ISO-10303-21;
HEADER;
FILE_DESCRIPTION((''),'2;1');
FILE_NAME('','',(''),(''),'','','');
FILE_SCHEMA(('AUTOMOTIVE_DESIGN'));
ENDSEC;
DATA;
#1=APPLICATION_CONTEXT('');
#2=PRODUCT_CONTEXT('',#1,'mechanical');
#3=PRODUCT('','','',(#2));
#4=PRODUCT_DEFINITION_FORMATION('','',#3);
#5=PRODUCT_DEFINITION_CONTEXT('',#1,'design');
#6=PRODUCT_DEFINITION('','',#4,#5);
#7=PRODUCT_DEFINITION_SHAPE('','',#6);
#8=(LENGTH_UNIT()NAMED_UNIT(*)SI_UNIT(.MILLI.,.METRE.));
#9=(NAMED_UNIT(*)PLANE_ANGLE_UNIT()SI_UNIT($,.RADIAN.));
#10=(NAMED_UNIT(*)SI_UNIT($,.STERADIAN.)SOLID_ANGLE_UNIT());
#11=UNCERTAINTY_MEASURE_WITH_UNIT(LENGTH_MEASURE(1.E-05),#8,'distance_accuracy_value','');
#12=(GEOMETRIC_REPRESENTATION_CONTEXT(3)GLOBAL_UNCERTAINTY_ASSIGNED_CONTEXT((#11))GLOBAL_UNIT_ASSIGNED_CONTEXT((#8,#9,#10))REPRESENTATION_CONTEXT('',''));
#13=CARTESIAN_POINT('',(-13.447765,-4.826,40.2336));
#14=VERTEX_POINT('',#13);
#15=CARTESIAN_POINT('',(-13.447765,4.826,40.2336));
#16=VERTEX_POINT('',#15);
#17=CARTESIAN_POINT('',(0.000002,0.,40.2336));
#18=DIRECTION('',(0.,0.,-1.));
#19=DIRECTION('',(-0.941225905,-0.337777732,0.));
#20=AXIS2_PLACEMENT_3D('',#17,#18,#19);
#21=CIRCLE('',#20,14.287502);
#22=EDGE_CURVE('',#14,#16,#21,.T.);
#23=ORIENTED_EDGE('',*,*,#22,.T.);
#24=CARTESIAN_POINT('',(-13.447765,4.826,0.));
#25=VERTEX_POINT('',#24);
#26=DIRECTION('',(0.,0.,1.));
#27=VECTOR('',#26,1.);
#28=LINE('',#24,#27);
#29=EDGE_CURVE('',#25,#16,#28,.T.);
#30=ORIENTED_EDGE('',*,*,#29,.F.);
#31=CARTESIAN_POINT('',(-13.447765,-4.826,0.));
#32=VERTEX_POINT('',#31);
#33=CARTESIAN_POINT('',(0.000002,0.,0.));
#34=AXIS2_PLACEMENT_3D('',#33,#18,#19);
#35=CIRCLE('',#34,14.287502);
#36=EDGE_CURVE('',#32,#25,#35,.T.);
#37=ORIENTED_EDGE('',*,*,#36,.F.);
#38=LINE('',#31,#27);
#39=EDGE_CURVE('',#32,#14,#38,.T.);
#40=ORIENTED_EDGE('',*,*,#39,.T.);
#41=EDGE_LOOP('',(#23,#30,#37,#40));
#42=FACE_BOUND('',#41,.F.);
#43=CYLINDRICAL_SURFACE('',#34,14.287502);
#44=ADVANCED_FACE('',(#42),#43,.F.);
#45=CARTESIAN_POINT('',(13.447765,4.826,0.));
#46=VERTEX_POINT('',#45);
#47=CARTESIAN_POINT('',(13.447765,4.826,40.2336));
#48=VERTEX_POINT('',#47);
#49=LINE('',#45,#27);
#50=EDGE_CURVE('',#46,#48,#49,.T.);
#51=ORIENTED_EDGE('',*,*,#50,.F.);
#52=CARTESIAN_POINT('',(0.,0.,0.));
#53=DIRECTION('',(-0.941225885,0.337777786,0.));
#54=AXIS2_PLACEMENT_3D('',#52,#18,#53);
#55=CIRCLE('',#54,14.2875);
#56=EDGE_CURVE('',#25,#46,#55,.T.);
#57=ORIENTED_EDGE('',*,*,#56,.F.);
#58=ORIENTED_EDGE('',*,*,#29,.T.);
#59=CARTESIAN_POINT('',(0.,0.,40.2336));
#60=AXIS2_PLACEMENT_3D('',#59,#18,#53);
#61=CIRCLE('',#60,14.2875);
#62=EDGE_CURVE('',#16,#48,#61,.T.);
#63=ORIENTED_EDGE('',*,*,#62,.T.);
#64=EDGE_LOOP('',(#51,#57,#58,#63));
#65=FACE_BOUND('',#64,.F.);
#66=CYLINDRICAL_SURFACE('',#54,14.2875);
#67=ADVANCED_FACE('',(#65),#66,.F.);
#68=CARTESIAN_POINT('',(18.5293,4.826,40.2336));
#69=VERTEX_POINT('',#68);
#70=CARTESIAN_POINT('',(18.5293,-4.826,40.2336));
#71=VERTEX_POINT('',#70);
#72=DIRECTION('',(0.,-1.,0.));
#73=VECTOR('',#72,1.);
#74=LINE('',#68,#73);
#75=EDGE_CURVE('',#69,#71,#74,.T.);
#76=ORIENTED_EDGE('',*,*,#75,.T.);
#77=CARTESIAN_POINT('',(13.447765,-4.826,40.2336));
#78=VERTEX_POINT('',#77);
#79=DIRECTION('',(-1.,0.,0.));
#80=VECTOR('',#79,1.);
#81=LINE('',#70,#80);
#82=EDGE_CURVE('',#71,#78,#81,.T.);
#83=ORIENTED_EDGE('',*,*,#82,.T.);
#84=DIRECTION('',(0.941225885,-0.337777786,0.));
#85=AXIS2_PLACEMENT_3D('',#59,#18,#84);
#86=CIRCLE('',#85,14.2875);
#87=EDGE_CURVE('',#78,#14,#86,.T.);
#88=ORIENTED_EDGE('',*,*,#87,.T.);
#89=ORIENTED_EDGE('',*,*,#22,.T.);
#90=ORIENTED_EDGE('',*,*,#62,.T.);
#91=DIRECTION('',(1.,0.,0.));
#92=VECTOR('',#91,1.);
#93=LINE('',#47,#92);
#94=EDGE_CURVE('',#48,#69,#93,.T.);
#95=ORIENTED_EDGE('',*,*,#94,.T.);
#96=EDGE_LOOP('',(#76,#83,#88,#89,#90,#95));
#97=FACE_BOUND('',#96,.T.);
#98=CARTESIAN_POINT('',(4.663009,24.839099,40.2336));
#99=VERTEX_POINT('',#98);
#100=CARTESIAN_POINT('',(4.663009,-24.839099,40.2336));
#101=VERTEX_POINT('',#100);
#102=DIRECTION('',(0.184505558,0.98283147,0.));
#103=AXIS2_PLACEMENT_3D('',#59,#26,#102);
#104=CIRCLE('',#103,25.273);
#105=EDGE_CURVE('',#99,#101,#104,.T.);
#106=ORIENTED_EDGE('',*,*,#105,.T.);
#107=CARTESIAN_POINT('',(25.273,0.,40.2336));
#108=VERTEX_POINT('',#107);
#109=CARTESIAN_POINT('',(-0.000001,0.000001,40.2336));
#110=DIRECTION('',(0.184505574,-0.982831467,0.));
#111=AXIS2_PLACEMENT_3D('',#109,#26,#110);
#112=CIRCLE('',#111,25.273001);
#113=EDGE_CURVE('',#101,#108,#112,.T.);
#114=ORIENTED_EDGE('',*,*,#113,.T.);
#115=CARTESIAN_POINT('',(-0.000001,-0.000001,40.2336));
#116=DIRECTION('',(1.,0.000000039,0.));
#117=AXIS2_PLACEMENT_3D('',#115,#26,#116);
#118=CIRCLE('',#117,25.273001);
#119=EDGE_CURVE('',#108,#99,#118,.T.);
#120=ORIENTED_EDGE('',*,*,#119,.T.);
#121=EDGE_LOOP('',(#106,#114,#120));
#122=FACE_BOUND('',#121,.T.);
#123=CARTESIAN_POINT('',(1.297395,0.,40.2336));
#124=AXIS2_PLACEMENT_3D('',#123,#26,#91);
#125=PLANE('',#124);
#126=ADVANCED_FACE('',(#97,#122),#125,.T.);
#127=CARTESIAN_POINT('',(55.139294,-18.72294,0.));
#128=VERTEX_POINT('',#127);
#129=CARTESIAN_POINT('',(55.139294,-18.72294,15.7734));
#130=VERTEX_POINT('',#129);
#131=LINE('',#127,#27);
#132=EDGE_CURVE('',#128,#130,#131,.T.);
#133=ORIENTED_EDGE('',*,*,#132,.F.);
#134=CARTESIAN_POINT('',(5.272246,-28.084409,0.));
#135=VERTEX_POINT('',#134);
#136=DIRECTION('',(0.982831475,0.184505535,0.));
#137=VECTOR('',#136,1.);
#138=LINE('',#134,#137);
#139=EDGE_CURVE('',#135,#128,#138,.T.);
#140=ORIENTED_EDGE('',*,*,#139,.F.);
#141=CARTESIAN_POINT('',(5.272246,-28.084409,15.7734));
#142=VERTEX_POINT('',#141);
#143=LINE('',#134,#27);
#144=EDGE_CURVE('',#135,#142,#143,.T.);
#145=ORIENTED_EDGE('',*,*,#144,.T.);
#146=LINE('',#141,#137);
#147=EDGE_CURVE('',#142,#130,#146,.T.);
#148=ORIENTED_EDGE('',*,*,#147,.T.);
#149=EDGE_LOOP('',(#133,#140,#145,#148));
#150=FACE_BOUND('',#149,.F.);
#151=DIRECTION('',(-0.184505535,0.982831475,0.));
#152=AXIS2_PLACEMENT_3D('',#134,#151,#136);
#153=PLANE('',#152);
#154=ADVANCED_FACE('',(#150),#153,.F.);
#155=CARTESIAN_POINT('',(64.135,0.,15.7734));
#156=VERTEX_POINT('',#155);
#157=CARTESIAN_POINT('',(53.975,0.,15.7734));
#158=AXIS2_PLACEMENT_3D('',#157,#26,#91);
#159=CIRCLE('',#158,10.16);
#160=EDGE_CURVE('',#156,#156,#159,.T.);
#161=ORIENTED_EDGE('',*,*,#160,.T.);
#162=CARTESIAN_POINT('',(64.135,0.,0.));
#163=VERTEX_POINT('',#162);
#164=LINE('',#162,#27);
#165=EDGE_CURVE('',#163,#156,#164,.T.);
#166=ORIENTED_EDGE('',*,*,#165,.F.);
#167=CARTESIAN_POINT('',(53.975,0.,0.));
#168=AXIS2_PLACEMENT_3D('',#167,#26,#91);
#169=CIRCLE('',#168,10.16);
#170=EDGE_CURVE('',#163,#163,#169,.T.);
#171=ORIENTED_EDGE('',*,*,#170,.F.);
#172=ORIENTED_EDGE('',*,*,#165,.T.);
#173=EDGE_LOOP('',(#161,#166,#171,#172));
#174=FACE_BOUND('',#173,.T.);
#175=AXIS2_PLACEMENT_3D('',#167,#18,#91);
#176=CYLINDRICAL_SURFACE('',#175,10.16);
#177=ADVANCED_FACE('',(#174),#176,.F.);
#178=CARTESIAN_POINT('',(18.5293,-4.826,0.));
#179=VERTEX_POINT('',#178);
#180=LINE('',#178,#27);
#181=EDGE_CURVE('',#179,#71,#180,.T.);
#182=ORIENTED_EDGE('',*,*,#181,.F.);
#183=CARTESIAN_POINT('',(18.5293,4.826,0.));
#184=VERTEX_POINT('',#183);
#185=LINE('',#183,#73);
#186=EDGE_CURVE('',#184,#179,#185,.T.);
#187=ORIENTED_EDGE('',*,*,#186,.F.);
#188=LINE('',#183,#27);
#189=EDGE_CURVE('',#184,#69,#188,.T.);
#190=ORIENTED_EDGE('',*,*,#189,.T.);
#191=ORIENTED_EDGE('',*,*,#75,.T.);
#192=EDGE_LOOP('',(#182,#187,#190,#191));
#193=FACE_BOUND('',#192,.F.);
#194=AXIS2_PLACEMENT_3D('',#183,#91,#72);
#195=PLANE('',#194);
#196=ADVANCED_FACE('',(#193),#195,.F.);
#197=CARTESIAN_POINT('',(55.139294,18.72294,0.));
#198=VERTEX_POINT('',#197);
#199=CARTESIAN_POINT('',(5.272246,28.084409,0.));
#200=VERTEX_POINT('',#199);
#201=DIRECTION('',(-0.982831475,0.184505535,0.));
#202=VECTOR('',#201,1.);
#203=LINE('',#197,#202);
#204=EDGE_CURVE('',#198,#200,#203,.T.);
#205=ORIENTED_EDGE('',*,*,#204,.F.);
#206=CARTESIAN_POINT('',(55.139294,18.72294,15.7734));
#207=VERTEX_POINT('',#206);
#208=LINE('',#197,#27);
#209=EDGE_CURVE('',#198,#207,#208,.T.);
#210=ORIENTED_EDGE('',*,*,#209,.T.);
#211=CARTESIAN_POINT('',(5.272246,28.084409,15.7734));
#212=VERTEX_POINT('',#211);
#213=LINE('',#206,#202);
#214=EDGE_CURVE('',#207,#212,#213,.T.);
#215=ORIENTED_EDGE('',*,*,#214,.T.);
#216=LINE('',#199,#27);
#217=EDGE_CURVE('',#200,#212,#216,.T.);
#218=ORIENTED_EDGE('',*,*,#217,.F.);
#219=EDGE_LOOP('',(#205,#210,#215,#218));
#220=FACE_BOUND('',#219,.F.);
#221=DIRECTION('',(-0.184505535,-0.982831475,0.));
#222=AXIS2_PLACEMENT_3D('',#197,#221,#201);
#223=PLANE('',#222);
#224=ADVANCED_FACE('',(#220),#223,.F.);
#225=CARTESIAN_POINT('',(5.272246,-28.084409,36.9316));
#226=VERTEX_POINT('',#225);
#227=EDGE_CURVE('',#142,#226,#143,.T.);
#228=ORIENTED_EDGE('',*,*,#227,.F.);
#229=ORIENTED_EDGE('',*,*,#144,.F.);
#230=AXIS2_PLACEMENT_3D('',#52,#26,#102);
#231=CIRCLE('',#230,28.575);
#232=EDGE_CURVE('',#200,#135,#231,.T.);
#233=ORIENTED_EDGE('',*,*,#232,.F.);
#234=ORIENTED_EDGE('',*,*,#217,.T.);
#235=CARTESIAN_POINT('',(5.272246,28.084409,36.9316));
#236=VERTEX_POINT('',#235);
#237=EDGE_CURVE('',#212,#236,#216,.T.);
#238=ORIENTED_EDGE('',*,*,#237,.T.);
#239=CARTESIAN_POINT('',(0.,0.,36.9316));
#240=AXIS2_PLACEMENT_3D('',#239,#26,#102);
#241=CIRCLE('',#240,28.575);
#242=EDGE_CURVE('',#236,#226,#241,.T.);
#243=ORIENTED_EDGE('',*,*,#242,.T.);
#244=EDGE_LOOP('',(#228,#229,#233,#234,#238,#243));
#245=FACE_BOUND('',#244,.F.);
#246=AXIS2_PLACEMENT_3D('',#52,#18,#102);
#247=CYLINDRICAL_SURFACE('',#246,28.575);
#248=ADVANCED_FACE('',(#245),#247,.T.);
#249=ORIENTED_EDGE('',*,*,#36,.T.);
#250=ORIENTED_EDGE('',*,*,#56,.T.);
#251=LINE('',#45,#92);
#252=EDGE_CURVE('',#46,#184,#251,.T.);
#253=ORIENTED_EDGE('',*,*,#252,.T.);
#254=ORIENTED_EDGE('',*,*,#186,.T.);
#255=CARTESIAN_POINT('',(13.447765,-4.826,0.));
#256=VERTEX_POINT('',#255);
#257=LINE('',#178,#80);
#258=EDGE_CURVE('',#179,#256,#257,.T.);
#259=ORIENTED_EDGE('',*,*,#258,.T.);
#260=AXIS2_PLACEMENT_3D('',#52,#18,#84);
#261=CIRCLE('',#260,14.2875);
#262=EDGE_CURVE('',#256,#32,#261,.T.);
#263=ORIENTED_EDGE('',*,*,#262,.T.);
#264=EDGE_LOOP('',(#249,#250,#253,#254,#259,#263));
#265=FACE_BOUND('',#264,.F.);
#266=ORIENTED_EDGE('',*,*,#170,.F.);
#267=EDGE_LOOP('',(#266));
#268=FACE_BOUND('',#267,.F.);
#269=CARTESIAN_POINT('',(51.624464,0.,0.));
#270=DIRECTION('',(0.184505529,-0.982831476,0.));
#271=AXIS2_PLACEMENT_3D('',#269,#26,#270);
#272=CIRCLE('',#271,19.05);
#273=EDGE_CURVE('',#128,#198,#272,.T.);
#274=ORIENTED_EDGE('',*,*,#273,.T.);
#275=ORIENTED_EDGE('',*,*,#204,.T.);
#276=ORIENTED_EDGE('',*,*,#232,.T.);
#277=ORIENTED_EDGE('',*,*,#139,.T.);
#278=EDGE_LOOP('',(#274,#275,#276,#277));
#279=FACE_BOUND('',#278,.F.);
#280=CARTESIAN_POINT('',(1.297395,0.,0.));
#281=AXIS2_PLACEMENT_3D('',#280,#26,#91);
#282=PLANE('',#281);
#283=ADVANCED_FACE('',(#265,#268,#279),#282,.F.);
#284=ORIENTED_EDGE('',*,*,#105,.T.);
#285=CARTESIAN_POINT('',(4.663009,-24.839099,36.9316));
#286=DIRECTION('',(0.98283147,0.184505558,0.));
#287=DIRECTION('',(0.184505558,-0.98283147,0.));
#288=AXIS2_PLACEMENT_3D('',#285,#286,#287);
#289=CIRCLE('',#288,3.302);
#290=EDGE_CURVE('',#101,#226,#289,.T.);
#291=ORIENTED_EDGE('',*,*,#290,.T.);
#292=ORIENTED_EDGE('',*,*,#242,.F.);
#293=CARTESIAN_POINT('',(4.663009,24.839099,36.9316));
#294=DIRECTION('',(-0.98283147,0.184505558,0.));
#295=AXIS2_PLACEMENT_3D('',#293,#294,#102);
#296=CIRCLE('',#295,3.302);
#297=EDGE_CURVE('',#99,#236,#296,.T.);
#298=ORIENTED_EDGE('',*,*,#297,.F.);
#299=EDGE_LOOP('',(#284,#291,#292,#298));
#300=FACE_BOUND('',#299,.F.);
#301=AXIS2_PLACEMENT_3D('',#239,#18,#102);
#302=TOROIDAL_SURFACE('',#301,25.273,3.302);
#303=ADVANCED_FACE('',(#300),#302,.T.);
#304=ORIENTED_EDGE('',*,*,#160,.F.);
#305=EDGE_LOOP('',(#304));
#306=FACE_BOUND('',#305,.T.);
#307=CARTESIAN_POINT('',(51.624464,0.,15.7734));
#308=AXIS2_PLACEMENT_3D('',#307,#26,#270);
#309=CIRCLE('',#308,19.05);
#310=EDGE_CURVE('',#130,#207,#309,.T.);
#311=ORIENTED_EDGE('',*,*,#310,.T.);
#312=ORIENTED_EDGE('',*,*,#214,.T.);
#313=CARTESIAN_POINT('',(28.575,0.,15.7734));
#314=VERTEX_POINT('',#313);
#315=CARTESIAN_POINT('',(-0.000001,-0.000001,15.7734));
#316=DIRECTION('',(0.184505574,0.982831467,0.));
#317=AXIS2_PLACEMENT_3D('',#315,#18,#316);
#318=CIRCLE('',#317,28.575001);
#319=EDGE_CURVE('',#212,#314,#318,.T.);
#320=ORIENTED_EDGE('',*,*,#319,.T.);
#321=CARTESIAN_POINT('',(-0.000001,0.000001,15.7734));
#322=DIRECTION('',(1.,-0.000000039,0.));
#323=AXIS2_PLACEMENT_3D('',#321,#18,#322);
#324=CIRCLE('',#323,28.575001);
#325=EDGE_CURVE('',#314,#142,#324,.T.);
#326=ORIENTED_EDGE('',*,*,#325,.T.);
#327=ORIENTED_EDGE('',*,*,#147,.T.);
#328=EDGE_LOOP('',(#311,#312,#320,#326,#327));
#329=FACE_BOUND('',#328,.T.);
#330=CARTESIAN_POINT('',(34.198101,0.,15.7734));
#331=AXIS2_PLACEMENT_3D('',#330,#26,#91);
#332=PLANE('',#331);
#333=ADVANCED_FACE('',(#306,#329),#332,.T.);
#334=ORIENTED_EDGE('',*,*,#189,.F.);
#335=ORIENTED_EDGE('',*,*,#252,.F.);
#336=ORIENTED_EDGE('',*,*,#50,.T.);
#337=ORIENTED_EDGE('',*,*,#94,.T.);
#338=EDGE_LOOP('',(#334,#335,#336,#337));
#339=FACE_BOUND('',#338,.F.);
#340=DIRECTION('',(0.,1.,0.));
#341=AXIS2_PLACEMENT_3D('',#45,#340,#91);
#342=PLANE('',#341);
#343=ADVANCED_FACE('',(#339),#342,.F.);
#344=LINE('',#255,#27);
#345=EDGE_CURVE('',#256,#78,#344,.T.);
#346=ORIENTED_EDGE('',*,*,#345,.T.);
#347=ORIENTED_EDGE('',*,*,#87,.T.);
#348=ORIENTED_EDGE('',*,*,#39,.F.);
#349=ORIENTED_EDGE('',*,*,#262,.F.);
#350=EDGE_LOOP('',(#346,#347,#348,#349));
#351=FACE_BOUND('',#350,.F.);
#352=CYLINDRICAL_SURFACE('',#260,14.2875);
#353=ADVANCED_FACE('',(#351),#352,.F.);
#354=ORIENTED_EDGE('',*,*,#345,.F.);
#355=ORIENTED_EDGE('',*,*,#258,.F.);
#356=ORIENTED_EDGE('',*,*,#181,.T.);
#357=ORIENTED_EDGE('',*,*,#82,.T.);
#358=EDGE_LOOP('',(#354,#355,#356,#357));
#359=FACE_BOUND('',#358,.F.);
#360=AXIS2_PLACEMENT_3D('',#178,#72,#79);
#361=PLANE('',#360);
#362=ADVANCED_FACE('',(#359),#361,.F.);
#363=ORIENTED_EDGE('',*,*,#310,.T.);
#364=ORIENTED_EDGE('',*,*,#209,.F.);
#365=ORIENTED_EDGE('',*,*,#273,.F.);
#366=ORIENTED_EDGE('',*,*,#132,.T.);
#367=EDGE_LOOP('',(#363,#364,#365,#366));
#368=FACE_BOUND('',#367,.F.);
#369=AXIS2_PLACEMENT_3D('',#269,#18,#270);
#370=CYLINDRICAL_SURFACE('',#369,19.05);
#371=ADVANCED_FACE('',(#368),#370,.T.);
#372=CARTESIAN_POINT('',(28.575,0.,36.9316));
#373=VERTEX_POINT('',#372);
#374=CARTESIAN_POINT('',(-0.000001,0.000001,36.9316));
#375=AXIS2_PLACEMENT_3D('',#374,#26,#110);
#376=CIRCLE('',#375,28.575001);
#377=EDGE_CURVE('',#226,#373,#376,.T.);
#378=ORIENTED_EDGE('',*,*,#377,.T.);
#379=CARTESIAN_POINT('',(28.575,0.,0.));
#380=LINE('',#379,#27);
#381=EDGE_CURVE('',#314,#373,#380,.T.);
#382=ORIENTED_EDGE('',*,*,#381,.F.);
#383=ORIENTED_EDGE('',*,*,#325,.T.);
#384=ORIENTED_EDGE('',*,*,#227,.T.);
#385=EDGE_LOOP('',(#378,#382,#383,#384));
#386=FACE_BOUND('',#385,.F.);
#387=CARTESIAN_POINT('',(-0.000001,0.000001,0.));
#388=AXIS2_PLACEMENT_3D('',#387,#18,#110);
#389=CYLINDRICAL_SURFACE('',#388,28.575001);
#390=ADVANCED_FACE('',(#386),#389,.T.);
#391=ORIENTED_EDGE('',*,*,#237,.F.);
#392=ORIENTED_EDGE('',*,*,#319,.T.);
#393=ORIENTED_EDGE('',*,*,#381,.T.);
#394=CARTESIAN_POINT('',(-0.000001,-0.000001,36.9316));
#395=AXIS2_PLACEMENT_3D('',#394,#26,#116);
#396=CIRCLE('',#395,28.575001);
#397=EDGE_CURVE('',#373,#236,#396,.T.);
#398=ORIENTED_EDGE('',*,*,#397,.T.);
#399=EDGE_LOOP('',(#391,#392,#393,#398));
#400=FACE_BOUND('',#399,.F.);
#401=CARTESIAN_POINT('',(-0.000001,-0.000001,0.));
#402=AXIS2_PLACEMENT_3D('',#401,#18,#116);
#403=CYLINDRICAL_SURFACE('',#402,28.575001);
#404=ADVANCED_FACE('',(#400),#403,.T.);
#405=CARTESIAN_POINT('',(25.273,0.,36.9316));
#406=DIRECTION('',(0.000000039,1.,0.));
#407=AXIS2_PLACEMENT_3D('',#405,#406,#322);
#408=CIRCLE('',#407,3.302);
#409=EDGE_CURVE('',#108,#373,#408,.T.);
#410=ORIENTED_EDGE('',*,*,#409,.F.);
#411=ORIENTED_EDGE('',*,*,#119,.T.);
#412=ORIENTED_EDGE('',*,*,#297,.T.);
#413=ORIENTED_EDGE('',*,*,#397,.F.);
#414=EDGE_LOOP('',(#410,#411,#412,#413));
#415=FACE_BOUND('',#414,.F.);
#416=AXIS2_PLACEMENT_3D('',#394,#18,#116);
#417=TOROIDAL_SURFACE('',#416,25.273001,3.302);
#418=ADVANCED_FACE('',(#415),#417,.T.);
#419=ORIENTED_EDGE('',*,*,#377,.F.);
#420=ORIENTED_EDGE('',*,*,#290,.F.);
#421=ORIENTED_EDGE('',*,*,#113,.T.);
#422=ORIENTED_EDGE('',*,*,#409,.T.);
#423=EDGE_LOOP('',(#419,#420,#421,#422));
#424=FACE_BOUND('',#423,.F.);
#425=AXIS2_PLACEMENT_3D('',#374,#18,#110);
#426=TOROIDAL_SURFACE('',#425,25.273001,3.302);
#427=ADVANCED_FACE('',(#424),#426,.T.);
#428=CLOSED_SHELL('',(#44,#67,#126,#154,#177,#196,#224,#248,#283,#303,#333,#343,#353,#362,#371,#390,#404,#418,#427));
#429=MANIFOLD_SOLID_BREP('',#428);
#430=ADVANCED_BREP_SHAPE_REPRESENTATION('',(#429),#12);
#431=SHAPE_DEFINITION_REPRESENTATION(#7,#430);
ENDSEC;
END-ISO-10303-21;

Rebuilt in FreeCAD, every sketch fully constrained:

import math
import FreeCAD as App
import Part
import Sketcher
from FreeCAD import Vector
Q = App.Units.Quantity


def edges_at(feature, points):
    """Names of the edges that pass closest to the given points."""
    edges = feature.Shape.Edges
    near = lambda p: min(range(len(edges)), key=lambda i: edges[i].distToShape(Part.Vertex(*p))[0])
    return sorted({f"Edge{near(p) + 1}" for p in points})

doc = App.newDocument("Part")
body = doc.addObject("PartDesign::Body", "Body")

# Sketch on XY plane
sketch1 = body.newObject("Sketcher::SketchObject", "Sketch")
sketch1.AttachmentSupport = (doc.getObject("XY_Plane"), [""])
sketch1.MapMode = "FlatFace"
sketch1.addGeometry(Part.ArcOfCircle(Part.Circle(Vector(-0.000001, -0.000001, 0), Vector(0, 0, 1), 28.575001), math.radians(0.000002), math.radians(79.367692)), False)
sketch1.addGeometry(Part.ArcOfCircle(Part.Circle(Vector(-0.000001, 0.000001, 0), Vector(0, 0, 1), 28.575001), math.radians(-79.367692), math.radians(-0.000002)), False)
sketch1.addGeometry(Part.LineSegment(Vector(5.272246, -28.084409, 0), Vector(55.139294, -18.72294, 0)), False)
sketch1.addGeometry(Part.ArcOfCircle(Part.Circle(Vector(51.624464, 0, 0), Vector(0, 0, 1), 19.05), math.radians(-79.367695), math.radians(79.367695)), False)
sketch1.addGeometry(Part.LineSegment(Vector(55.139294, 18.72294, 0), Vector(5.272246, 28.084409, 0)), False)
sketch1.addGeometry(Part.Circle(Vector(53.975, 0, 0), Vector(0, 0, 1), 10.16), False)
sketch1.addConstraint(Sketcher.Constraint("Tangent", 0, 1, 1, 2))
sketch1.addConstraint(Sketcher.Constraint("Tangent", 1, 1, 2, 1))
sketch1.addConstraint(Sketcher.Constraint("Tangent", 2, 2, 3, 1))
sketch1.addConstraint(Sketcher.Constraint("Tangent", 3, 2, 4, 1))
sketch1.addConstraint(Sketcher.Constraint("Tangent", 4, 2, 0, 2))
sketch1.addConstraint(Sketcher.Constraint("Coincident", 0, 3, -1, 1))
sketch1.addConstraint(Sketcher.Constraint("Equal", 0, 1))
sketch1.addConstraint(Sketcher.Constraint("PointOnObject", 3, 3, -1))
sketch1.addConstraint(Sketcher.Constraint("PointOnObject", 5, 3, -1))
sketch1.addConstraint(Sketcher.Constraint("PointOnObject", 0, 1, -1))
sketch1.addConstraint(Sketcher.Constraint("Diameter", 5, Q("0.8 in")))
sketch1.addConstraint(Sketcher.Constraint("Radius", 3, Q("0.75 in")))
sketch1.addConstraint(Sketcher.Constraint("Radius", 0, Q("1.125 in")))
sketch1.addConstraint(Sketcher.Constraint("DistanceX", 0, 1, 5, 3, Q("1 in")))
sketch1.addConstraint(Sketcher.Constraint("DistanceY", 1, 1, -1, 1, 28.084409))
pad1 = body.newObject("PartDesign::Pad", "Pad")
pad1.Profile = sketch1
pad1.Length = Q("0.621 in")

# Sketch on XY plane
sketch2 = body.newObject("Sketcher::SketchObject", "Sketch001")
sketch2.AttachmentSupport = (doc.getObject("XY_Plane"), [""])
sketch2.MapMode = "FlatFace"
sketch2.addGeometry(Part.ArcOfCircle(Part.Circle(Vector(-0.000001, 0.000001, 0), Vector(0, 0, 1), 28.575001), math.radians(-79.367692), math.radians(-0.000002)), False)
sketch2.addGeometry(Part.ArcOfCircle(Part.Circle(Vector(-0.000001, -0.000001, 0), Vector(0, 0, 1), 28.575001), math.radians(0.000002), math.radians(79.367692)), False)
sketch2.addGeometry(Part.ArcOfCircle(Part.Circle(Vector(0, 0, 0), Vector(0, 0, 1), 28.575), math.radians(79.367693), math.radians(280.632307)), False)
sketch2.addGeometry(Part.ArcOfCircle(Part.Circle(Vector(0, 0, 0), Vector(0, 0, 1), 14.2875), math.radians(-160.258458), math.radians(-19.741542)), False)
sketch2.addGeometry(Part.ArcOfCircle(Part.Circle(Vector(0.000002, 0, 0), Vector(0, 0, 1), 14.287502), math.radians(160.258461), math.radians(199.741539)), False)
sketch2.addGeometry(Part.ArcOfCircle(Part.Circle(Vector(0, 0, 0), Vector(0, 0, 1), 14.2875), math.radians(19.741542), math.radians(160.258458)), False)
sketch2.addGeometry(Part.LineSegment(Vector(13.447765, 4.826, 0), Vector(18.5293, 4.826, 0)), False)
sketch2.addGeometry(Part.LineSegment(Vector(18.5293, 4.826, 0), Vector(18.5293, -4.826, 0)), False)
sketch2.addGeometry(Part.LineSegment(Vector(18.5293, -4.826, 0), Vector(13.447765, -4.826, 0)), False)
sketch2.addConstraint(Sketcher.Constraint("Tangent", 0, 2, 1, 1))
sketch2.addConstraint(Sketcher.Constraint("Tangent", 1, 2, 2, 1))
sketch2.addConstraint(Sketcher.Constraint("Tangent", 2, 2, 0, 1))
sketch2.addConstraint(Sketcher.Constraint("Tangent", 3, 1, 4, 2))
sketch2.addConstraint(Sketcher.Constraint("Tangent", 4, 1, 5, 2))
sketch2.addConstraint(Sketcher.Constraint("Coincident", 5, 1, 6, 1))
sketch2.addConstraint(Sketcher.Constraint("Coincident", 6, 2, 7, 1))
sketch2.addConstraint(Sketcher.Constraint("Coincident", 7, 2, 8, 1))
sketch2.addConstraint(Sketcher.Constraint("Coincident", 8, 2, 3, 2))
sketch2.addConstraint(Sketcher.Constraint("Horizontal", 6))
sketch2.addConstraint(Sketcher.Constraint("Vertical", 7))
sketch2.addConstraint(Sketcher.Constraint("Horizontal", 8))
sketch2.addConstraint(Sketcher.Constraint("Coincident", 0, 3, -1, 1))
sketch2.addConstraint(Sketcher.Constraint("Coincident", 3, 3, -1, 1))
sketch2.addConstraint(Sketcher.Constraint("Coincident", 5, 3, -1, 1))
sketch2.addConstraint(Sketcher.Constraint("PointOnObject", 0, 2, -1))
sketch2.addConstraint(Sketcher.Constraint("Horizontal", 4, 1, 5, 1))
sketch2.addConstraint(Sketcher.Constraint("Horizontal", 3, 1, 7, 2))
sketch2.addConstraint(Sketcher.Constraint("Vertical", 1, 2, 2, 2))
sketch2.addConstraint(Sketcher.Constraint("Vertical", 3, 1, 4, 1))
sketch2.addConstraint(Sketcher.Constraint("Radius", 0, Q("1.125 in")))
sketch2.addConstraint(Sketcher.Constraint("Radius", 3, Q("0.5625 in")))
sketch2.addConstraint(Sketcher.Constraint("DistanceY", 7, 2, 7, 1, Q("0.38 in")))
sketch2.addConstraint(Sketcher.Constraint("DistanceX", -1, 1, 6, 2, Q("0.7295 in")))
sketch2.addConstraint(Sketcher.Constraint("DistanceY", -1, 1, 1, 2, 28.084409))
pad2 = body.newObject("PartDesign::Pad", "Pad001")
pad2.Profile = sketch2
pad2.Length = Q("1.584 in")
doc.recompute()

fillet = body.newObject("PartDesign::Fillet", "Fillet")
fillet.Base = (pad2, edges_at(pad2, [(-28.575, 0, 40.234)]))
fillet.Radius = Q("0.13 in")

doc.recompute()
